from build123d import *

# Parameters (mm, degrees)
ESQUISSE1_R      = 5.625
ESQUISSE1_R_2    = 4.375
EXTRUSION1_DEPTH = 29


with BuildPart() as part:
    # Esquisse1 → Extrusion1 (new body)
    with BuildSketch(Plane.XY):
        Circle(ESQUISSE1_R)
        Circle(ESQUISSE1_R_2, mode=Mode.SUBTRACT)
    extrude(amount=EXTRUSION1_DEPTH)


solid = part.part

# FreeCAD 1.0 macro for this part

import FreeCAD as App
import Part
import Sketcher

V = App.Vector
Q = App.Units.Quantity

doc = App.newDocument("Part")
params = doc.addObject("Spreadsheet::Sheet", "Params")
for row, (alias, value) in enumerate([
    ("sketch1_diameter", "11.25 mm"),
    ("sketch1_diameter2", "8.75 mm"),
    ("pad1_length", "29 mm"),
], start=1):
    params.set(f"A{row}", alias)
    params.set(f"B{row}", "=" + value)
    params.setAlias(f"B{row}", alias)

body = doc.addObject("PartDesign::Body", "Body")

# Sketch on XY plane
sketch1 = body.newObject("Sketcher::SketchObject", "Sketch")
sketch1.AttachmentSupport = (doc.getObject("XY_Plane"), [""])
sketch1.MapMode = "FlatFace"
sketch1.addGeometry(Part.Circle(V(0, 0, 0), V(0, 0, 1), 5.6), False)
sketch1.addGeometry(Part.Circle(V(0, 0, 0), V(0, 0, 1), 4.4), False)
sketch1.addConstraint(Sketcher.Constraint("Coincident", 0, 3, -1, 1))
sketch1.addConstraint(Sketcher.Constraint("Coincident", 1, 3, -1, 1))
sketch1.addConstraint(Sketcher.Constraint("Diameter", 0, Q("11.25 mm")))
sketch1.addConstraint(Sketcher.Constraint("Diameter", 1, Q("8.75 mm")))
sketch1.setExpression("Constraints[2]", "Params.sketch1_diameter")
sketch1.setExpression("Constraints[3]", "Params.sketch1_diameter2")
pad1 = body.newObject("PartDesign::Pad", "Pad")
pad1.Profile = sketch1
pad1.setExpression("Length", "Params.pad1_length")

doc.recompute()
